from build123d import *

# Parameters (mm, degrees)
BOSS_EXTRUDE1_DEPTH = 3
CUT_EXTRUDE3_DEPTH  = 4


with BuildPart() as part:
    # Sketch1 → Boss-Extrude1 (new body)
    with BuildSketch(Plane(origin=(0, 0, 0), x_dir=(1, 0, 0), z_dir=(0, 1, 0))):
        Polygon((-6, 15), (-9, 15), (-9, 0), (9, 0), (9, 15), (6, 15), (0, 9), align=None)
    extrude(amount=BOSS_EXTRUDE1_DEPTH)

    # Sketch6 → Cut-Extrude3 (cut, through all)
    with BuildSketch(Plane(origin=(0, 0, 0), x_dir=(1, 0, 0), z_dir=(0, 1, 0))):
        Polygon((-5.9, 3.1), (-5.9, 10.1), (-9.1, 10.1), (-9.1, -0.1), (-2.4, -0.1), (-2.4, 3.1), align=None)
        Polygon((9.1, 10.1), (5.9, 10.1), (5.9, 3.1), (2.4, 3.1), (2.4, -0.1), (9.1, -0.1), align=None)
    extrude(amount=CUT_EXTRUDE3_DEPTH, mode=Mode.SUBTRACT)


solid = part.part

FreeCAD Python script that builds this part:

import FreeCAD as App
import Part
import Sketcher


def add_polygon(sketch, points):
    """Adds a closed chain of lines whose ends are joined by coincident constraints."""
    first, n = sketch.GeometryCount, len(points)
    for a, b in zip(points, points[1:] + points[:1]):
        sketch.addGeometry(Part.LineSegment(App.Vector(*a, 0), App.Vector(*b, 0)), False)
    for i in range(n):
        sketch.addConstraint(Sketcher.Constraint("Coincident", first + i, 2, first + (i + 1) % n, 1))

doc = App.newDocument("Part")
params = doc.addObject("Spreadsheet::Sheet", "Params")
for row, (alias, value) in enumerate([
    ("sketch1_width", "3 mm"),
    ("sketch1_width2", "18 mm"),
    ("sketch1_height", "15 mm"),
    ("pad1_length", "3 mm"),
    ("sketch2_height", "7 mm"),
    ("sketch2_width", "3.2 mm"),
    ("sketch2_width2", "6.7 mm"),
], start=1):
    params.set(f"A{row}", alias)
    params.set(f"B{row}", "=" + value)
    params.setAlias(f"B{row}", alias)

body = doc.addObject("PartDesign::Body", "Body")

# Sketch on XZ plane
sketch1 = doc.addObject("Sketcher::SketchObject", "Sketch")
body.addObject(sketch1)
sketch1.AttachmentSupport = (doc.XZ_Plane, [""])
sketch1.MapMode = "FlatFace"
add_polygon(sketch1, [(-6, -15), (-9, -15), (-9, 0), (9, 0), (9, -15), (6, -15), (0, -9)])  # lines 0-6
sketch1.addConstraint([
    Sketcher.Constraint("Horizontal", 0),
    Sketcher.Constraint("Vertical", 1),
    Sketcher.Constraint("Horizontal", 2),
    Sketcher.Constraint("Vertical", 3),
    Sketcher.Constraint("Horizontal", 4),
    Sketcher.Constraint("Symmetric", 1, 2, 2, 2, -1, 1),
    Sketcher.Constraint("Symmetric", 4, 2, 6, 2, -2),
    Sketcher.Constraint("PointOnObject", 5, 2, -2),
    Sketcher.Constraint("Perpendicular", 5, 6),
    Sketcher.Constraint("DistanceX", 0, 2, 0, 1, 3.0),
    Sketcher.Constraint("DistanceX", 2, 1, 2, 2, 18.0),
    Sketcher.Constraint("DistanceY", 1, 1, 1, 2, 15.0),
])
sketch1.setExpression("Constraints[16]", "Params.sketch1_width")
sketch1.setExpression("Constraints[17]", "Params.sketch1_width2")
sketch1.setExpression("Constraints[18]", "Params.sketch1_height")
pad1 = doc.addObject("PartDesign::Pad", "Pad")
body.addObject(pad1)
pad1.Profile = sketch1
pad1.setExpression("Length", "Params.pad1_length")
pad1.Reversed = True

# Sketch on XZ plane
sketch2 = doc.addObject("Sketcher::SketchObject", "Sketch001")
body.addObject(sketch2)
sketch2.AttachmentSupport = (doc.XZ_Plane, [""])
sketch2.MapMode = "FlatFace"
add_polygon(sketch2, [(-5.9, -3.1), (-5.9, -10.1), (-9.1, -10.1), (-9.1, 0.1), (-2.4, 0.1), (-2.4, -3.1)])  # lines 0-5
add_polygon(sketch2, [(9.1, -10.1), (5.9, -10.1), (5.9, -3.1), (2.4, -3.1), (2.4, 0.1), (9.1, 0.1)])  # lines 6-11
sketch2.addConstraint([
    Sketcher.Constraint("Vertical", 0),
    Sketcher.Constraint("Horizontal", 1),
    Sketcher.Constraint("Vertical", 2),
    Sketcher.Constraint("Horizontal", 3),
    Sketcher.Constraint("Vertical", 4),
    Sketcher.Constraint("Horizontal", 5),
    Sketcher.Constraint("Horizontal", 6),
    Sketcher.Constraint("Vertical", 7),
    Sketcher.Constraint("Horizontal", 8),
    Sketcher.Constraint("Vertical", 9),
    Sketcher.Constraint("Horizontal", 10),
    Sketcher.Constraint("Vertical", 11),
    Sketcher.Constraint("Symmetric", 0, 2, 6, 2, -2),
    Sketcher.Constraint("Symmetric", 4, 2, 8, 2, -2),
    Sketcher.Constraint("Symmetric", 2, 2, 10, 2, -2),
    Sketcher.Constraint("Equal", 6, 4),
    Sketcher.Constraint("DistanceY", 0, 2, 0, 1, 7.0),
    Sketcher.Constraint("DistanceX", 1, 2, 1, 1, 3.2),
    Sketcher.Constraint("DistanceX", 3, 1, 3, 2, 6.7),
    Sketcher.Constraint("DistanceX", 1, 2, 6, 2, 15.0),
    Sketcher.Constraint("DistanceY", 0, 2, -1, 1, 10.1),
])
sketch2.setExpression("Constraints[28]", "Params.sketch2_height")
sketch2.setExpression("Constraints[29]", "Params.sketch2_width")
sketch2.setExpression("Constraints[30]", "Params.sketch2_width2")
pocket1 = doc.addObject("PartDesign::Pocket", "Pocket")
body.addObject(pocket1)
pocket1.Profile = sketch2
pocket1.Type = "ThroughAll"

doc.recompute()
